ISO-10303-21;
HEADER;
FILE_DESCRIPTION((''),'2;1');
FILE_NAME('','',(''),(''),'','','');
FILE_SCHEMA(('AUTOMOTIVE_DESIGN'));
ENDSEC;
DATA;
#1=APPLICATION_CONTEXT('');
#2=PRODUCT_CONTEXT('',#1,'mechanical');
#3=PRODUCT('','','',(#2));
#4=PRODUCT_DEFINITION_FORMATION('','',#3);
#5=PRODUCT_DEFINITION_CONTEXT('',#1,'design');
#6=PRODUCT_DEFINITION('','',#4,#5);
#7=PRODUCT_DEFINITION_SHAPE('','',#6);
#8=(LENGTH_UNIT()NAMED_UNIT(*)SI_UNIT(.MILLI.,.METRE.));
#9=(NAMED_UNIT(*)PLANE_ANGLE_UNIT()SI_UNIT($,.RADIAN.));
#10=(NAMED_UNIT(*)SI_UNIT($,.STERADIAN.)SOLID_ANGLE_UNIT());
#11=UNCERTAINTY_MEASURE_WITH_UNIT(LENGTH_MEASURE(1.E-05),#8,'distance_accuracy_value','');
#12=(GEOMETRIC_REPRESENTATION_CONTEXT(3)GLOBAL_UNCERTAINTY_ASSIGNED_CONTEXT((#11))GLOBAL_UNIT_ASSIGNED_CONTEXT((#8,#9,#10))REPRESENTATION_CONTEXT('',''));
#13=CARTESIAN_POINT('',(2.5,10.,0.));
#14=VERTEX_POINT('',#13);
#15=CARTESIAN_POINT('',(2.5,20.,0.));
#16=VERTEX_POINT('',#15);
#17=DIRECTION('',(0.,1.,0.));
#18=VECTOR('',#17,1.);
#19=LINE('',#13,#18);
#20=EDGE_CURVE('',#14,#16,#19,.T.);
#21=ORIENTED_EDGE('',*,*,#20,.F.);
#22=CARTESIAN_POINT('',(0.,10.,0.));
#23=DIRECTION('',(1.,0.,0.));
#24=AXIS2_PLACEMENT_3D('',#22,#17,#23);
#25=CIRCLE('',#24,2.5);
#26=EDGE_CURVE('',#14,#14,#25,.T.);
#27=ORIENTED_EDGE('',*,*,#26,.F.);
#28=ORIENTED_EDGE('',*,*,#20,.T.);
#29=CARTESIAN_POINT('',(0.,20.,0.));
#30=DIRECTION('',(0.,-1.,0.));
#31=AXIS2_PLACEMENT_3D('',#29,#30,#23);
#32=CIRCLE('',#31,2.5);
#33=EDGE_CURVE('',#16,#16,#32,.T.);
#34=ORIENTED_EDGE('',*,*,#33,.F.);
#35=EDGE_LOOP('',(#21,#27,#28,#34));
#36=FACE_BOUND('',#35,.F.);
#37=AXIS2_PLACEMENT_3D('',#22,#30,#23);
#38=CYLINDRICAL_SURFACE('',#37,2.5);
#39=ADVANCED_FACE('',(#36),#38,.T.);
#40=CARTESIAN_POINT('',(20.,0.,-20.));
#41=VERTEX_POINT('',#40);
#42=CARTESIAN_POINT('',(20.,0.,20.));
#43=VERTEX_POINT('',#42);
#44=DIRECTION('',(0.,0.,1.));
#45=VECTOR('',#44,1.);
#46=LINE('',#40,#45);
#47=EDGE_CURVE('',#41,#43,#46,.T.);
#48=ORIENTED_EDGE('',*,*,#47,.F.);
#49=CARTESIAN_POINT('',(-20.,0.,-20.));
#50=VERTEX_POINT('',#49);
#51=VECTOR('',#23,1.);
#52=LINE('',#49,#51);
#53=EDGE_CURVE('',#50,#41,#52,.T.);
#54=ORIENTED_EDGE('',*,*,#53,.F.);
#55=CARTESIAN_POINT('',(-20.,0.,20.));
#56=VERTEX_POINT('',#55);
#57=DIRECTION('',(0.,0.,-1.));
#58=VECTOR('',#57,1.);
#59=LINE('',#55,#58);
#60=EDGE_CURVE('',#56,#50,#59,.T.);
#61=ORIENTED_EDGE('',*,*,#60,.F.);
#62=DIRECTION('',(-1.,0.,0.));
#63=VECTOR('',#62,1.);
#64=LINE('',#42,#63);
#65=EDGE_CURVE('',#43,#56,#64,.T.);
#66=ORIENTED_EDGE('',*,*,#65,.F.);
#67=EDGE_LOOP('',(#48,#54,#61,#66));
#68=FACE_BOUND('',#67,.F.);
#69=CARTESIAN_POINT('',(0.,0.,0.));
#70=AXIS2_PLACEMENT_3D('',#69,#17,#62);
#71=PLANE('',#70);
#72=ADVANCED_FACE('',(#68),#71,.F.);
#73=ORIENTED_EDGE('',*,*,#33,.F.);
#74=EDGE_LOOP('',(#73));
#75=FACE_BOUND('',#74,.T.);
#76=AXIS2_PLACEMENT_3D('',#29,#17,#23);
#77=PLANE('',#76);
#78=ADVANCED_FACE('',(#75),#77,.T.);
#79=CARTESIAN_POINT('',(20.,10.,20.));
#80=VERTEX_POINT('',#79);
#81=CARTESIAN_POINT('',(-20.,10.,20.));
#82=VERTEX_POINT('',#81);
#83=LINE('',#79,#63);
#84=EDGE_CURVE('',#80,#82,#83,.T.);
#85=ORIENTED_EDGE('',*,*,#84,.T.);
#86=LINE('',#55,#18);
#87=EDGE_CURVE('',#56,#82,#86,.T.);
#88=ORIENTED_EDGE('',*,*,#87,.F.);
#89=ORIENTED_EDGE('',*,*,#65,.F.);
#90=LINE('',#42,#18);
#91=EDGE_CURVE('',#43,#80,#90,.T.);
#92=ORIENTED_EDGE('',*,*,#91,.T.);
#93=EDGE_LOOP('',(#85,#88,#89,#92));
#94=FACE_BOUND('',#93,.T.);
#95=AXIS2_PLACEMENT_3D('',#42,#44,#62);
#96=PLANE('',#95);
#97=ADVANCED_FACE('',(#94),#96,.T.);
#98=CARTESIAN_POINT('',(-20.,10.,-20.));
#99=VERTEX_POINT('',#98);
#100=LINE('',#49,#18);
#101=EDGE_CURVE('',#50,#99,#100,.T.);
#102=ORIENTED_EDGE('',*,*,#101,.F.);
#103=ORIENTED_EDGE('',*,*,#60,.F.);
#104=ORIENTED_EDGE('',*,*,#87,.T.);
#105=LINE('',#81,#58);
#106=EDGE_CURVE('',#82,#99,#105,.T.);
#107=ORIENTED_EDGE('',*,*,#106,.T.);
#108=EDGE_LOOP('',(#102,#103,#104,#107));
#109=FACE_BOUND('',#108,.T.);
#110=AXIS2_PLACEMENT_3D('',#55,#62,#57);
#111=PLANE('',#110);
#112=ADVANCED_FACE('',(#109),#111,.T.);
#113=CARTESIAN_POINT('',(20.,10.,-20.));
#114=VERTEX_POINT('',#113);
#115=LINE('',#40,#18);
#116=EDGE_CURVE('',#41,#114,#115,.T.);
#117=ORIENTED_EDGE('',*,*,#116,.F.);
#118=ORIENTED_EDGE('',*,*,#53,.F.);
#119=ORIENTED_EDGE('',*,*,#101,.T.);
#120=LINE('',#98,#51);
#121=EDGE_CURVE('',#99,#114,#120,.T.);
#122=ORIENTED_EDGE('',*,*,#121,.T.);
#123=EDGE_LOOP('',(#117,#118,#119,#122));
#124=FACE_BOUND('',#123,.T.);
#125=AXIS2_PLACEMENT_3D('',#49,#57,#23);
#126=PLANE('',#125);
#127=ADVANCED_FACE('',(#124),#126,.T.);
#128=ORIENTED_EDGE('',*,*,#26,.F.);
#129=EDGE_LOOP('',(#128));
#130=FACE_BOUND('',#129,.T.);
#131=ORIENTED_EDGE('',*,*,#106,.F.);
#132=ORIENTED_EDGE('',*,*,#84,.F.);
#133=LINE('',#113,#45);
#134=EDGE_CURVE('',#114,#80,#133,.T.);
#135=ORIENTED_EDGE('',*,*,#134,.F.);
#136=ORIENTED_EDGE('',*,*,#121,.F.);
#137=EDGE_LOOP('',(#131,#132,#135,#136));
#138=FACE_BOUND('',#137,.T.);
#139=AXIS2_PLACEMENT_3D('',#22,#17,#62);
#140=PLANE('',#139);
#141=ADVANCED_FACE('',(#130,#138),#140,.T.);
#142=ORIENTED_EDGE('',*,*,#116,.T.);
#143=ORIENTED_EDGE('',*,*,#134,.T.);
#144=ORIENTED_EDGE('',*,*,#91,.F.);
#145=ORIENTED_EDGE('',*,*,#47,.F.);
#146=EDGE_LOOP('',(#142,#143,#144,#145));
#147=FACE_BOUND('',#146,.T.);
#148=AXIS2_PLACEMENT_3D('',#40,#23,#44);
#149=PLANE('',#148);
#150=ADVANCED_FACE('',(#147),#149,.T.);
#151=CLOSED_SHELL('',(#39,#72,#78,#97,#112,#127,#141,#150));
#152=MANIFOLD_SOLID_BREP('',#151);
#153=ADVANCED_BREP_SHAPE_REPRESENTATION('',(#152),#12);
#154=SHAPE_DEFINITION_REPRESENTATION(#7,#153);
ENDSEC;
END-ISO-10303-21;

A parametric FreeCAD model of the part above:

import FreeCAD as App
import Part
import Sketcher

V = App.Vector


def add_polygon(sketch, points):
    """Adds a closed chain of lines whose ends are joined by coincident constraints."""
    first, n = sketch.GeometryCount, len(points)
    for a, b in zip(points, points[1:] + points[:1]):
        sketch.addGeometry(Part.LineSegment(App.Vector(*a, 0), App.Vector(*b, 0)), False)
    for i in range(n):
        sketch.addConstraint(Sketcher.Constraint("Coincident", first + i, 2, first + (i + 1) % n, 1))

doc = App.newDocument("Part")
body = doc.addObject("PartDesign::Body", "Body")

sketch1 = body.newObject("Sketcher::SketchObject", "Sketch")
sketch1.AttachmentSupport = (doc.getObject("XZ_Plane"), [""])
sketch1.MapMode = "FlatFace"
add_polygon(sketch1, [(20, -20), (-20, -20), (-20, 20), (20, 20)])
sketch1.addConstraint(Sketcher.Constraint("Horizontal", 0))
sketch1.addConstraint(Sketcher.Constraint("Vertical", 1))
sketch1.addConstraint(Sketcher.Constraint("Horizontal", 2))
sketch1.addConstraint(Sketcher.Constraint("Vertical", 3))
sketch1.addConstraint(Sketcher.Constraint("Symmetric", 0, 2, 2, 2, -1, 1))
sketch1.addConstraint(Sketcher.Constraint("Equal", 2, 1))
sketch1.addConstraint(Sketcher.Constraint("DistanceX", 0, 2, 0, 1, 40.0))
pad1 = body.newObject("PartDesign::Pad", "Pad")
pad1.Profile = sketch1
pad1.Length = 10
pad1.Reversed = True

sketch2 = body.newObject("Sketcher::SketchObject", "Sketch001")
sketch2.AttachmentSupport = (doc.getObject("XZ_Plane"), [""])
sketch2.MapMode = "FlatFace"
sketch2.AttachmentOffset = App.Placement(V(0, 0, -10), App.Rotation())
sketch2.addGeometry(Part.Circle(V(0, 0, 0), V(0, 0, 1), 2.5), False)
sketch2.addConstraint(Sketcher.Constraint("Coincident", 0, 3, -1, 1))
sketch2.addConstraint(Sketcher.Constraint("Diameter", 0, 5.0))
pad2 = body.newObject("PartDesign::Pad", "Pad001")
pad2.Profile = sketch2
pad2.Length = 10
pad2.Reversed = True

doc.recompute()
